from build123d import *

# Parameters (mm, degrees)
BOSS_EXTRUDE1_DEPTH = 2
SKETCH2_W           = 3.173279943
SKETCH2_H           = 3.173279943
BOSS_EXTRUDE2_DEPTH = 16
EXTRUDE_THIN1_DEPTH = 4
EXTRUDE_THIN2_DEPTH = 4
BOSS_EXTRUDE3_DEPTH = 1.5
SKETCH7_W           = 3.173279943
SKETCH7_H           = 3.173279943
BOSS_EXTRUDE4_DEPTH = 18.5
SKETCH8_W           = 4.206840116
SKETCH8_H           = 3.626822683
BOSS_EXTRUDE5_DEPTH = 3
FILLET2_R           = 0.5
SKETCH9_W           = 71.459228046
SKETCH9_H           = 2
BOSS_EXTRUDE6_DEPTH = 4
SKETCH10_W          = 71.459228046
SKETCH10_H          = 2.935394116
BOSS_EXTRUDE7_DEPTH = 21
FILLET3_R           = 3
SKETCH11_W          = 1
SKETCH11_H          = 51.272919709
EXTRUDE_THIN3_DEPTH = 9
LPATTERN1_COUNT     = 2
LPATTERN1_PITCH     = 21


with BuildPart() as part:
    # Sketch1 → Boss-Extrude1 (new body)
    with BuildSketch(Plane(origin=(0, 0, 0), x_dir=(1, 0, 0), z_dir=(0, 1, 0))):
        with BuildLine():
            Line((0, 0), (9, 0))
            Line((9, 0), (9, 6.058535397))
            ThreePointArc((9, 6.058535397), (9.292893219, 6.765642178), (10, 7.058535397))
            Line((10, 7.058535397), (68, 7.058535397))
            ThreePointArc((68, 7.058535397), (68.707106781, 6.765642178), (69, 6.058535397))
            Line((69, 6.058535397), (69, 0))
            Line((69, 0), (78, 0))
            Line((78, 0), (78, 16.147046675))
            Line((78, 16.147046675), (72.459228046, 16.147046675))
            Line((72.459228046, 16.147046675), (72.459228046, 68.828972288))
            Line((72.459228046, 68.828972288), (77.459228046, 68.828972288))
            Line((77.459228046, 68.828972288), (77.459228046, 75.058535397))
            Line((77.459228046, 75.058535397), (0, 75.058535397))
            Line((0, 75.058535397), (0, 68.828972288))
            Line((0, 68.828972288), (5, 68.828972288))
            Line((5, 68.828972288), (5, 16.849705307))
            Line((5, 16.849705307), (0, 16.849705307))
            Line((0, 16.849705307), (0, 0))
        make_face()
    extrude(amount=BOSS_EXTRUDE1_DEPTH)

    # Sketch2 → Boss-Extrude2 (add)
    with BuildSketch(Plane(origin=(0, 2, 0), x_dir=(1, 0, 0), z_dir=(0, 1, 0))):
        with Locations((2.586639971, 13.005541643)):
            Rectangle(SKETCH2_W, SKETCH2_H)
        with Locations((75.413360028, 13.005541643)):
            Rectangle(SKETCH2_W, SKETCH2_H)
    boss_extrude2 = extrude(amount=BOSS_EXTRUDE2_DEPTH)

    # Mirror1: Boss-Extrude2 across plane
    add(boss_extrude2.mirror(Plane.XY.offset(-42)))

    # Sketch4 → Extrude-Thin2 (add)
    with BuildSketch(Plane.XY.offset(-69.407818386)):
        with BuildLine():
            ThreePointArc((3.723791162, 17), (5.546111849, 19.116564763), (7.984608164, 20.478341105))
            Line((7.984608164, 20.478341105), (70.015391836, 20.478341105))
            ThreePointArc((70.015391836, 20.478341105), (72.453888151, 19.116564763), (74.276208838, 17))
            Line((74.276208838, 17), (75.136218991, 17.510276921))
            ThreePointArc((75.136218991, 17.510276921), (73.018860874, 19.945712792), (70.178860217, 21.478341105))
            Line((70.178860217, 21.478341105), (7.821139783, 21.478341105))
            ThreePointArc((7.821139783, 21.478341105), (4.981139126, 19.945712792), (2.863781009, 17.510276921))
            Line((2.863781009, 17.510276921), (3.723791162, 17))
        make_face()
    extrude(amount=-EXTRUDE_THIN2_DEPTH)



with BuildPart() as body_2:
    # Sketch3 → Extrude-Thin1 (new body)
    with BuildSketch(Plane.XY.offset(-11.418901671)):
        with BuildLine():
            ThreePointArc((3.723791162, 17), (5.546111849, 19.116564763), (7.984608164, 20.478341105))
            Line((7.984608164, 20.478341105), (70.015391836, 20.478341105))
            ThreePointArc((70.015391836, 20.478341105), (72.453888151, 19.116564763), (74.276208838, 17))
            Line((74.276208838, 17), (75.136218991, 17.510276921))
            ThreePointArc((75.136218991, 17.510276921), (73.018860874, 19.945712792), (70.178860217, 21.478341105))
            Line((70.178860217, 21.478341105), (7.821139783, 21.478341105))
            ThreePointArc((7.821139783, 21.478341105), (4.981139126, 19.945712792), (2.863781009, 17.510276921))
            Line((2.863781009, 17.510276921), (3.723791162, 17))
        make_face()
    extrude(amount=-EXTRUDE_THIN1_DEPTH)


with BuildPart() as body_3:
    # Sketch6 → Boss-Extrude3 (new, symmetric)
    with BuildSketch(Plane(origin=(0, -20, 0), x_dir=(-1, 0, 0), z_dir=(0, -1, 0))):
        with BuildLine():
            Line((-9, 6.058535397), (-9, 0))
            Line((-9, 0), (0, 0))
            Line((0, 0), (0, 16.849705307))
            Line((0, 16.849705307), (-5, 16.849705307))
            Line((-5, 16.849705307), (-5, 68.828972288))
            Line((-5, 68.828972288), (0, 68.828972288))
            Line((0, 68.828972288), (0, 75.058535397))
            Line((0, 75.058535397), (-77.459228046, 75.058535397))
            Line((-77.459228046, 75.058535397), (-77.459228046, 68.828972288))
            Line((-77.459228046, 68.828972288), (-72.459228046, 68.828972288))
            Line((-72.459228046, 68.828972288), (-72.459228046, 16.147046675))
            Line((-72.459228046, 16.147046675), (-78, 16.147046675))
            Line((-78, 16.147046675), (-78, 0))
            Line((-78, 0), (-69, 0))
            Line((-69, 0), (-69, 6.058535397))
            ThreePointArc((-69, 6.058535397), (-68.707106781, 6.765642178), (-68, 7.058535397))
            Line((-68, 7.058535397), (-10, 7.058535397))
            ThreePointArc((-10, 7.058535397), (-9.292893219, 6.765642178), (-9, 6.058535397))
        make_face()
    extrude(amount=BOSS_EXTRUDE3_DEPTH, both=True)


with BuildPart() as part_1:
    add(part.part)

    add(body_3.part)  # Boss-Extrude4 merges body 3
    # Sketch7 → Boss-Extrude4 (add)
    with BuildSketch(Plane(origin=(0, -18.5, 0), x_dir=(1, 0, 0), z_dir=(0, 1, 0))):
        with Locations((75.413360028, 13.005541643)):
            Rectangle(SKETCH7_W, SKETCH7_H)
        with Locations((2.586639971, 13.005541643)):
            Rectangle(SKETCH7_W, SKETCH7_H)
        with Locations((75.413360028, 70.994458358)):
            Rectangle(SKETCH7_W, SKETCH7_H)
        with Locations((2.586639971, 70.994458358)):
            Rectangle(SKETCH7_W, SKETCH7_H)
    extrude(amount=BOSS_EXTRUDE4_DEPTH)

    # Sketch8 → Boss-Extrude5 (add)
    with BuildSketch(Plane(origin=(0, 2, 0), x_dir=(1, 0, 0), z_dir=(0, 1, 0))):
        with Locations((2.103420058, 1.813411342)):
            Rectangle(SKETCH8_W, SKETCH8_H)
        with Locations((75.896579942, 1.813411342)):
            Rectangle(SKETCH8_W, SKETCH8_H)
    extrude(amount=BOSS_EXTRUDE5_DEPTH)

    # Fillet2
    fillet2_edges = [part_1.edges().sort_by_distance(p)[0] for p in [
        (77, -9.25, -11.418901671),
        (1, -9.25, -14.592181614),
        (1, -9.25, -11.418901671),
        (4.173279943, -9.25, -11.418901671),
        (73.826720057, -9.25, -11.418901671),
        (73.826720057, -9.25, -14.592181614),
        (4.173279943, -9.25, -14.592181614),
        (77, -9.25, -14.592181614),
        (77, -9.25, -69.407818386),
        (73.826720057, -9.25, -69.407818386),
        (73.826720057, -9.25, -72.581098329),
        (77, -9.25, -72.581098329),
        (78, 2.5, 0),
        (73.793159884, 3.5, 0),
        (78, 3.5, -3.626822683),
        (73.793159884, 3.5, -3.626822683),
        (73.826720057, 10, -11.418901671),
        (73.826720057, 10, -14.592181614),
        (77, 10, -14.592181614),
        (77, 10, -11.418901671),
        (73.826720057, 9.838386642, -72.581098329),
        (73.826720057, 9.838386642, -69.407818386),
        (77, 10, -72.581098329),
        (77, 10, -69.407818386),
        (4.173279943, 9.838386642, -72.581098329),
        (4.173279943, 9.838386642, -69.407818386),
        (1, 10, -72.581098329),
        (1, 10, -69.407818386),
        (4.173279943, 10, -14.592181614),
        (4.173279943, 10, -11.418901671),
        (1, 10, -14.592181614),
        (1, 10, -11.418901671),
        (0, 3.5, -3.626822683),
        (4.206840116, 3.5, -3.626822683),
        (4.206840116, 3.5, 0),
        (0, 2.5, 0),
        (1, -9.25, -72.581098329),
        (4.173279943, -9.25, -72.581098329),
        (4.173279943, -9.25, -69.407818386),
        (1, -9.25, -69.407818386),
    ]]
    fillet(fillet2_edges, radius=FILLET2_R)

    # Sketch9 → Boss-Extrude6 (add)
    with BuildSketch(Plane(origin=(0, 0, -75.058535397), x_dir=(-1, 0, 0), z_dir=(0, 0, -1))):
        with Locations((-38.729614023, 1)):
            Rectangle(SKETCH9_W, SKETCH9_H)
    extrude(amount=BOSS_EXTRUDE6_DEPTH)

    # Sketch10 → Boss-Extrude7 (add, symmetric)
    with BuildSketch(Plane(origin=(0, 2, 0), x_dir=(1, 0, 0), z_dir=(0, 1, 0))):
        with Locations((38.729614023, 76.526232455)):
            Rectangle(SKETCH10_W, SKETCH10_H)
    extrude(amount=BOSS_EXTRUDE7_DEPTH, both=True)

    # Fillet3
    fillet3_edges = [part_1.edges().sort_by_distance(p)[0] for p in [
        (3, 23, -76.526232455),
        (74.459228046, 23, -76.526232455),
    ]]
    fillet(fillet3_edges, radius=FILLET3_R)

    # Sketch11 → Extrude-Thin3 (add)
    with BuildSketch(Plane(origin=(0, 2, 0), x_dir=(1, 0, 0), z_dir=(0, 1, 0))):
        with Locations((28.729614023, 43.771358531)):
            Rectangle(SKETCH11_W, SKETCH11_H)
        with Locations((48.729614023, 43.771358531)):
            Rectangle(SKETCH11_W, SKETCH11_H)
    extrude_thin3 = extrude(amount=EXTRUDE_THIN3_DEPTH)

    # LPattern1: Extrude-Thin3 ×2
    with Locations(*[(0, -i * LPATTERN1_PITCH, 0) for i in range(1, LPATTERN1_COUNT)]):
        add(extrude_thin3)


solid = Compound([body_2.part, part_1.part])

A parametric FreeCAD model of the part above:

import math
import FreeCAD as App
import Part
import Sketcher
Q = App.Units.Quantity


def edges_at(feature, points):
    """Names of the edges that pass closest to the given points."""
    edges = feature.Shape.Edges
    near = lambda p: min(range(len(edges)), key=lambda i: edges[i].distToShape(Part.Vertex(*p))[0])
    return sorted({f"Edge{near(p) + 1}" for p in points})

doc = App.newDocument("Part")
params = doc.addObject("Spreadsheet::Sheet", "Params")
for row, (alias, value) in enumerate([
    ("sketch1_radius", "1 mm"),
    ("sketch1_width", "9 mm"),
    ("sketch1_width2", "58 mm"),
    ("sketch1_width3", "5 mm"),
    ("pad1_length", "2 mm"),
    ("pad2_length", "16 mm"),
    ("sketch3_length", "1 mm"),
    ("pad3_length", "4 mm"),
    ("sketch4_length", "1 mm"),
    ("pad4_length", "4 mm"),
    ("sketch5_radius", "1 mm"),
    ("sketch5_width", "9 mm"),
    ("sketch5_width2", "5 mm"),
    ("sketch5_width3", "58 mm"),
    ("pad5_length", "3 mm"),
    ("pad6_length", "18.5 mm"),
    ("pad7_length", "3 mm"),
    ("fillet_radius", "0.5 mm"),
    ("sketch8_height", "2 mm"),
    ("pad8_length", "4 mm"),
    ("pad9_length", "42 mm"),
    ("fillet2_radius", "3 mm"),
    ("sketch10_width", "1 mm"),
    ("pad10_length", "9 mm"),
    ("linearpattern_pitch", "21 mm"),
], start=1):
    params.set(f"A{row}", alias)
    params.set(f"B{row}", "=" + value)
    params.setAlias(f"B{row}", alias)

body = doc.addObject("PartDesign::Body", "Body")

# Sketch on XZ plane
sketch1 = doc.addObject("Sketcher::SketchObject", "Sketch")
body.addObject(sketch1)
sketch1.AttachmentSupport = (doc.XZ_Plane, [""])
sketch1.MapMode = "FlatFace"
sketch1.addGeometry([
    Part.LineSegment(App.Vector(0, 0, 0), App.Vector(9, 0, 0)),  # 0
    Part.LineSegment(App.Vector(9, 0, 0), App.Vector(9, -6.058535, 0)),  # 1
    Part.ArcOfCircle(Part.Circle(App.Vector(10, -6.058535, 0), App.Vector(0, 0, 1), 1), math.radians(-180), math.radians(-90)),  # 2
    Part.LineSegment(App.Vector(10, -7.058535, 0), App.Vector(68, -7.058535, 0)),  # 3
    Part.ArcOfCircle(Part.Circle(App.Vector(68, -6.058535, 0), App.Vector(0, 0, 1), 1), math.radians(-90), math.radians(0)),  # 4
    Part.LineSegment(App.Vector(69, -6.058535, 0), App.Vector(69, 0, 0)),  # 5
    Part.LineSegment(App.Vector(69, 0, 0), App.Vector(78, 0, 0)),  # 6
    Part.LineSegment(App.Vector(78, 0, 0), App.Vector(78, -16.147047, 0)),  # 7
    Part.LineSegment(App.Vector(78, -16.147047, 0), App.Vector(72.459228, -16.147047, 0)),  # 8
    Part.LineSegment(App.Vector(72.459228, -16.147047, 0), App.Vector(72.459228, -68.828972, 0)),  # 9
    Part.LineSegment(App.Vector(72.459228, -68.828972, 0), App.Vector(77.459228, -68.828972, 0)),  # 10
    Part.LineSegment(App.Vector(77.459228, -68.828972, 0), App.Vector(77.459228, -75.058535, 0)),  # 11
    Part.LineSegment(App.Vector(77.459228, -75.058535, 0), App.Vector(0, -75.058535, 0)),  # 12
    Part.LineSegment(App.Vector(0, -75.058535, 0), App.Vector(0, -68.828972, 0)),  # 13
    Part.LineSegment(App.Vector(0, -68.828972, 0), App.Vector(5, -68.828972, 0)),  # 14
    Part.LineSegment(App.Vector(5, -68.828972, 0), App.Vector(5, -16.849705, 0)),  # 15
    Part.LineSegment(App.Vector(5, -16.849705, 0), App.Vector(0, -16.849705, 0)),  # 16
    Part.LineSegment(App.Vector(0, -16.849705, 0), App.Vector(0, 0, 0)),  # 17
], False)
sketch1.addConstraint([
    Sketcher.Constraint("Coincident", 0, 2, 1, 1),
    Sketcher.Constraint("Tangent", 1, 2, 2, 1),
    Sketcher.Constraint("Tangent", 2, 2, 3, 1),
    Sketcher.Constraint("Tangent", 3, 2, 4, 1),
    Sketcher.Constraint("Tangent", 4, 2, 5, 1),
    Sketcher.Constraint("Coincident", 5, 2, 6, 1),
    Sketcher.Constraint("Coincident", 6, 2, 7, 1),
    Sketcher.Constraint("Coincident", 7, 2, 8, 1),
    Sketcher.Constraint("Coincident", 8, 2, 9, 1),
    Sketcher.Constraint("Coincident", 9, 2, 10, 1),
    Sketcher.Constraint("Coincident", 10, 2, 11, 1),
    Sketcher.Constraint("Coincident", 11, 2, 12, 1),
    Sketcher.Constraint("Coincident", 12, 2, 13, 1),
    Sketcher.Constraint("Coincident", 13, 2, 14, 1),
    Sketcher.Constraint("Coincident", 14, 2, 15, 1),
    Sketcher.Constraint("Coincident", 15, 2, 16, 1),
    Sketcher.Constraint("Coincident", 16, 2, 17, 1),
    Sketcher.Constraint("Coincident", 17, 2, 0, 1),
    Sketcher.Constraint("Horizontal", 0),
    Sketcher.Constraint("Vertical", 1),
    Sketcher.Constraint("Horizontal", 3),
    Sketcher.Constraint("Vertical", 5),
    Sketcher.Constraint("Horizontal", 6),
    Sketcher.Constraint("Vertical", 7),
    Sketcher.Constraint("Horizontal", 8),
    Sketcher.Constraint("Vertical", 9),
    Sketcher.Constraint("Horizontal", 10),
    Sketcher.Constraint("Vertical", 11),
    Sketcher.Constraint("Horizontal", 12),
    Sketcher.Constraint("Vertical", 13),
    Sketcher.Constraint("Horizontal", 14),
    Sketcher.Constraint("Vertical", 15),
    Sketcher.Constraint("Horizontal", 16),
    Sketcher.Constraint("Vertical", 17),
    Sketcher.Constraint("Coincident", 17, 2, -1, 1),
    Sketcher.Constraint("Equal", 2, 4),
    Sketcher.Constraint("PointOnObject", 5, 2, -1),
    Sketcher.Constraint("PointOnObject", 12, 2, -2),
    Sketcher.Constraint("Horizontal", 10, 2, 13, 2),
    Sketcher.Constraint("Equal", 0, 6),
    Sketcher.Constraint("Equal", 10, 14),
    Sketcher.Constraint("Radius", 2, Q("1 mm")),
    Sketcher.Constraint("DistanceX", 0, 1, 0, 2, Q("9 mm")),
    Sketcher.Constraint("DistanceX", 3, 1, 3, 2, Q("58 mm")),
    Sketcher.Constraint("DistanceX", 10, 1, 10, 2, Q("5 mm")),
    Sketcher.Constraint("DistanceY", 11, 2, 3, 2, Q("68 mm")),
    Sketcher.Constraint("DistanceX", 8, 2, 8, 1, Q("5.540772 mm")),
    Sketcher.Constraint("DistanceY", 1, 2, 1, 1, Q("6.058535 mm")),
    Sketcher.Constraint("DistanceY", 7, 2, 7, 1, Q("16.147047 mm")),
    Sketcher.Constraint("DistanceY", 9, 2, 9, 1, Q("52.681926 mm")),
    Sketcher.Constraint("DistanceY", 15, 1, 15, 2, Q("51.979267 mm")),
])
sketch1.setExpression("Constraints[41]", "Params.sketch1_radius")
sketch1.setExpression("Constraints[42]", "Params.sketch1_width")
sketch1.setExpression("Constraints[43]", "Params.sketch1_width2")
sketch1.setExpression("Constraints[44]", "Params.sketch1_width3")
pad1 = doc.addObject("PartDesign::Pad", "Pad")
body.addObject(pad1)
pad1.Profile = sketch1
pad1.setExpression("Length", "Params.pad1_length")
pad1.Reversed = True

# Sketch on XZ plane
sketch2 = doc.addObject("Sketcher::SketchObject", "Sketch001")
body.addObject(sketch2)
sketch2.AttachmentSupport = (doc.XZ_Plane, [""])
sketch2.MapMode = "FlatFace"
sketch2.AttachmentOffset = App.Placement(App.Vector(0, 0, -2), App.Rotation())
sketch2.addGeometry([
    Part.LineSegment(App.Vector(1, -14.592182, 0), App.Vector(1, -11.418902, 0)),  # 0
    Part.LineSegment(App.Vector(1, -11.418902, 0), App.Vector(4.17328, -11.418902, 0)),  # 1
    Part.LineSegment(App.Vector(4.17328, -11.418902, 0), App.Vector(4.17328, -14.592182, 0)),  # 2
    Part.LineSegment(App.Vector(4.17328, -14.592182, 0), App.Vector(1, -14.592182, 0)),  # 3
    Part.LineSegment(App.Vector(73.82672, -14.592182, 0), App.Vector(73.82672, -11.418902, 0)),  # 4
    Part.LineSegment(App.Vector(73.82672, -11.418902, 0), App.Vector(77, -11.418902, 0)),  # 5
    Part.LineSegment(App.Vector(77, -11.418902, 0), App.Vector(77, -14.592182, 0)),  # 6
    Part.LineSegment(App.Vector(77, -14.592182, 0), App.Vector(73.82672, -14.592182, 0)),  # 7
], False)
sketch2.addConstraint([
    Sketcher.Constraint("Coincident", 0, 2, 1, 1),
    Sketcher.Constraint("Coincident", 1, 2, 2, 1),
    Sketcher.Constraint("Coincident", 2, 2, 3, 1),
    Sketcher.Constraint("Coincident", 3, 2, 0, 1),
    Sketcher.Constraint("Coincident", 4, 2, 5, 1),
    Sketcher.Constraint("Coincident", 5, 2, 6, 1),
    Sketcher.Constraint("Coincident", 6, 2, 7, 1),
    Sketcher.Constraint("Coincident", 7, 2, 4, 1),
    Sketcher.Constraint("Vertical", 0),
    Sketcher.Constraint("Horizontal", 1),
    Sketcher.Constraint("Vertical", 2),
    Sketcher.Constraint("Horizontal", 3),
    Sketcher.Constraint("Vertical", 4),
    Sketcher.Constraint("Horizontal", 5),
    Sketcher.Constraint("Vertical", 6),
    Sketcher.Constraint("Horizontal", 7),
    Sketcher.Constraint("Horizontal", 1, 2, 4, 2),
    Sketcher.Constraint("Horizontal", 3, 2, 6, 2),
    Sketcher.Constraint("Equal", 3, 5),
    Sketcher.Constraint("Equal", 7, 0),
    Sketcher.Constraint("DistanceX", -1, 1, 0, 2, Q("1 mm")),
    Sketcher.Constraint("DistanceX", -1, 1, 5, 2, Q("77 mm")),
    Sketcher.Constraint("DistanceX", 1, 1, 1, 2, Q("3.17328 mm")),
    Sketcher.Constraint("DistanceY", 0, 2, -1, 1, Q("11.418902 mm")),
])
pad2 = doc.addObject("PartDesign::Pad", "Pad001")
body.addObject(pad2)
pad2.Profile = sketch2
pad2.setExpression("Length", "Params.pad2_length")
pad2.Reversed = True
doc.recompute()

datumplane = doc.addObject("PartDesign::Plane", "DatumPlane")
body.addObject(datumplane)
datumplane.AttachmentSupport = (doc.XY_Plane, [""])
datumplane.MapMode = "FlatFace"
datumplane.AttachmentOffset = App.Placement(App.Vector(0, 0, -42), App.Rotation())
mirrored = doc.addObject("PartDesign::Mirrored", "Mirrored")
body.addObject(mirrored)
mirrored.Originals = [pad2]
mirrored.MirrorPlane = (datumplane, [""])
body.Tip = mirrored

# Sketch on XY plane
sketch3 = doc.addObject("Sketcher::SketchObject", "Sketch002")
body.addObject(sketch3)
sketch3.AttachmentSupport = (doc.XY_Plane, [""])
sketch3.MapMode = "FlatFace"
sketch3.AttachmentOffset = App.Placement(App.Vector(0, 0, -69.407818), App.Rotation())
sketch3.addGeometry([
    Part.ArcOfCircle(Part.Circle(App.Vector(10.609007, 12.914738, 0), App.Vector(0, 0, 1), 8.00597), math.radians(109.135613), math.radians(149.317723)),  # 0
    Part.LineSegment(App.Vector(7.984608, 20.478341, 0), App.Vector(70.015392, 20.478341, 0)),  # 1
    Part.ArcOfCircle(Part.Circle(App.Vector(67.390993, 12.914738, 0), App.Vector(0, 0, 1), 8.00597), math.radians(30.682277), math.radians(70.864387)),  # 2
    Part.LineSegment(App.Vector(74.276209, 17, 0), App.Vector(75.136219, 17.510277, 0)),  # 3
    Part.ArcOfCircle(Part.Circle(App.Vector(67.390993, 12.914738, 0), App.Vector(0, 0, 1), 9.00597), math.radians(30.682277), math.radians(71.967426)),  # 4
    Part.LineSegment(App.Vector(70.17886, 21.478341, 0), App.Vector(7.82114, 21.478341, 0)),  # 5
    Part.ArcOfCircle(Part.Circle(App.Vector(10.609007, 12.914738, 0), App.Vector(0, 0, 1), 9.00597), math.radians(108.032574), math.radians(149.317723)),  # 6
    Part.LineSegment(App.Vector(2.863781, 17.510277, 0), App.Vector(3.723791, 17, 0)),  # 7
], False)
sketch3.addConstraint([
    Sketcher.Constraint("Coincident", 0, 1, 1, 1),
    Sketcher.Constraint("Coincident", 1, 2, 2, 2),
    Sketcher.Constraint("Coincident", 2, 1, 3, 1),
    Sketcher.Constraint("Coincident", 3, 2, 4, 1),
    Sketcher.Constraint("Coincident", 4, 2, 5, 1),
    Sketcher.Constraint("Coincident", 5, 2, 6, 1),
    Sketcher.Constraint("Coincident", 6, 2, 7, 1),
    Sketcher.Constraint("Coincident", 7, 2, 0, 2),
    Sketcher.Constraint("Horizontal", 1),
    Sketcher.Constraint("Horizontal", 5),
    Sketcher.Constraint("Coincident", 4, 3, 2, 3),
    Sketcher.Constraint("Coincident", 6, 3, 0, 3),
    Sketcher.Constraint("Equal", 0, 2),
    Sketcher.Constraint("Equal", 4, 6),
    Sketcher.Constraint("Horizontal", 0, 3, 2, 3),
    Sketcher.Constraint("Horizontal", 3, 2, 6, 2),
    Sketcher.Constraint("Horizontal", 2, 1, 7, 2),
    Sketcher.Constraint("Distance", 3, Q("1 mm")),
    Sketcher.Constraint("DistanceY", -1, 1, 2, 1, Q("17 mm")),
    Sketcher.Constraint("DistanceY", 1, 2, 4, 2, Q("1 mm")),
    Sketcher.Constraint("Radius", 0, Q("8.00597 mm")),
    Sketcher.Constraint("DistanceX", 5, 2, 5, 1, Q("62.35772 mm")),
    Sketcher.Constraint("DistanceX", 0, 1, 0, 3, Q("2.624398 mm")),
    Sketcher.Constraint("DistanceY", -1, 1, 0, 3, Q("12.914738 mm")),
    Sketcher.Constraint("DistanceX", -1, 1, 0, 1, Q("7.984608 mm")),
    Sketcher.Constraint("DistanceX", -1, 1, 3, 2, Q("75.136219 mm")),
])
sketch3.setExpression("Constraints[17]", "Params.sketch3_length")
pad3 = doc.addObject("PartDesign::Pad", "Pad002")
body.addObject(pad3)
pad3.Profile = sketch3
pad3.setExpression("Length", "Params.pad3_length")
pad3.Reversed = True
body2 = doc.addObject("PartDesign::Body", "Body001")

# Sketch on XY plane
sketch4 = doc.addObject("Sketcher::SketchObject", "Sketch003")
body2.addObject(sketch4)
sketch4.AttachmentSupport = (doc.getObject("XY_Plane001"), [""])
sketch4.MapMode = "FlatFace"
sketch4.AttachmentOffset = App.Placement(App.Vector(0, 0, -11.418902), App.Rotation())
sketch4.addGeometry([
    Part.ArcOfCircle(Part.Circle(App.Vector(10.609007, 12.914738, 0), App.Vector(0, 0, 1), 8.00597), math.radians(109.135613), math.radians(149.317723)),  # 0
    Part.LineSegment(App.Vector(7.984608, 20.478341, 0), App.Vector(70.015392, 20.478341, 0)),  # 1
    Part.ArcOfCircle(Part.Circle(App.Vector(67.390993, 12.914738, 0), App.Vector(0, 0, 1), 8.00597), math.radians(30.682277), math.radians(70.864387)),  # 2
    Part.LineSegment(App.Vector(74.276209, 17, 0), App.Vector(75.136219, 17.510277, 0)),  # 3
    Part.ArcOfCircle(Part.Circle(App.Vector(67.390993, 12.914738, 0), App.Vector(0, 0, 1), 9.00597), math.radians(30.682277), math.radians(71.967426)),  # 4
    Part.LineSegment(App.Vector(70.17886, 21.478341, 0), App.Vector(7.82114, 21.478341, 0)),  # 5
    Part.ArcOfCircle(Part.Circle(App.Vector(10.609007, 12.914738, 0), App.Vector(0, 0, 1), 9.00597), math.radians(108.032574), math.radians(149.317723)),  # 6
    Part.LineSegment(App.Vector(2.863781, 17.510277, 0), App.Vector(3.723791, 17, 0)),  # 7
], False)
sketch4.addConstraint([
    Sketcher.Constraint("Coincident", 0, 1, 1, 1),
    Sketcher.Constraint("Coincident", 1, 2, 2, 2),
    Sketcher.Constraint("Coincident", 2, 1, 3, 1),
    Sketcher.Constraint("Coincident", 3, 2, 4, 1),
    Sketcher.Constraint("Coincident", 4, 2, 5, 1),
    Sketcher.Constraint("Coincident", 5, 2, 6, 1),
    Sketcher.Constraint("Coincident", 6, 2, 7, 1),
    Sketcher.Constraint("Coincident", 7, 2, 0, 2),
    Sketcher.Constraint("Horizontal", 1),
    Sketcher.Constraint("Horizontal", 5),
    Sketcher.Constraint("Coincident", 4, 3, 2, 3),
    Sketcher.Constraint("Coincident", 6, 3, 0, 3),
    Sketcher.Constraint("Equal", 0, 2),
    Sketcher.Constraint("Equal", 4, 6),
    Sketcher.Constraint("Horizontal", 0, 3, 2, 3),
    Sketcher.Constraint("Horizontal", 3, 2, 6, 2),
    Sketcher.Constraint("Horizontal", 2, 1, 7, 2),
    Sketcher.Constraint("Distance", 3, Q("1 mm")),
    Sketcher.Constraint("DistanceY", -1, 1, 2, 1, Q("17 mm")),
    Sketcher.Constraint("DistanceY", 1, 2, 4, 2, Q("1 mm")),
    Sketcher.Constraint("Radius", 0, Q("8.00597 mm")),
    Sketcher.Constraint("DistanceX", 5, 2, 5, 1, Q("62.35772 mm")),
    Sketcher.Constraint("DistanceX", 0, 1, 0, 3, Q("2.624398 mm")),
    Sketcher.Constraint("DistanceY", -1, 1, 0, 3, Q("12.914738 mm")),
    Sketcher.Constraint("DistanceX", -1, 1, 0, 1, Q("7.984608 mm")),
    Sketcher.Constraint("DistanceX", -1, 1, 3, 2, Q("75.136219 mm")),
])
sketch4.setExpression("Constraints[17]", "Params.sketch4_length")
pad4 = doc.addObject("PartDesign::Pad", "Pad003")
body2.addObject(pad4)
pad4.Profile = sketch4
pad4.setExpression("Length", "Params.pad4_length")
pad4.Reversed = True
body3 = doc.addObject("PartDesign::Body", "Body002")

# Sketch on XZ plane
sketch5 = doc.addObject("Sketcher::SketchObject", "Sketch004")
body3.addObject(sketch5)
sketch5.AttachmentSupport = (doc.getObject("XZ_Plane002"), [""])
sketch5.MapMode = "FlatFace"
sketch5.AttachmentOffset = App.Placement(App.Vector(0, 0, 20), App.Rotation())
sketch5.addGeometry([
    Part.LineSegment(App.Vector(9, -6.058535, 0), App.Vector(9, 0, 0)),  # 0
    Part.LineSegment(App.Vector(9, 0, 0), App.Vector(0, 0, 0)),  # 1
    Part.LineSegment(App.Vector(0, 0, 0), App.Vector(0, -16.849705, 0)),  # 2
    Part.LineSegment(App.Vector(0, -16.849705, 0), App.Vector(5, -16.849705, 0)),  # 3
    Part.LineSegment(App.Vector(5, -16.849705, 0), App.Vector(5, -68.828972, 0)),  # 4
    Part.LineSegment(App.Vector(5, -68.828972, 0), App.Vector(0, -68.828972, 0)),  # 5
    Part.LineSegment(App.Vector(0, -68.828972, 0), App.Vector(0, -75.058535, 0)),  # 6
    Part.LineSegment(App.Vector(0, -75.058535, 0), App.Vector(77.459228, -75.058535, 0)),  # 7
    Part.LineSegment(App.Vector(77.459228, -75.058535, 0), App.Vector(77.459228, -68.828972, 0)),  # 8
    Part.LineSegment(App.Vector(77.459228, -68.828972, 0), App.Vector(72.459228, -68.828972, 0)),  # 9
    Part.LineSegment(App.Vector(72.459228, -68.828972, 0), App.Vector(72.459228, -16.147047, 0)),  # 10
    Part.LineSegment(App.Vector(72.459228, -16.147047, 0), App.Vector(78, -16.147047, 0)),  # 11
    Part.LineSegment(App.Vector(78, -16.147047, 0), App.Vector(78, 0, 0)),  # 12
    Part.LineSegment(App.Vector(78, 0, 0), App.Vector(69, 0, 0)),  # 13
    Part.LineSegment(App.Vector(69, 0, 0), App.Vector(69, -6.058535, 0)),  # 14
    Part.ArcOfCircle(Part.Circle(App.Vector(68, -6.058535, 0), App.Vector(0, 0, 1), 1), math.radians(-90), math.radians(0)),  # 15
    Part.LineSegment(App.Vector(68, -7.058535, 0), App.Vector(10, -7.058535, 0)),  # 16
    Part.ArcOfCircle(Part.Circle(App.Vector(10, -6.058535, 0), App.Vector(0, 0, 1), 1), math.radians(-180), math.radians(-90)),  # 17
], False)
sketch5.addConstraint([
    Sketcher.Constraint("Coincident", 0, 2, 1, 1),
    Sketcher.Constraint("Coincident", 1, 2, 2, 1),
    Sketcher.Constraint("Coincident", 2, 2, 3, 1),
    Sketcher.Constraint("Coincident", 3, 2, 4, 1),
    Sketcher.Constraint("Coincident", 4, 2, 5, 1),
    Sketcher.Constraint("Coincident", 5, 2, 6, 1),
    Sketcher.Constraint("Coincident", 6, 2, 7, 1),
    Sketcher.Constraint("Coincident", 7, 2, 8, 1),
    Sketcher.Constraint("Coincident", 8, 2, 9, 1),
    Sketcher.Constraint("Coincident", 9, 2, 10, 1),
    Sketcher.Constraint("Coincident", 10, 2, 11, 1),
    Sketcher.Constraint("Coincident", 11, 2, 12, 1),
    Sketcher.Constraint("Coincident", 12, 2, 13, 1),
    Sketcher.Constraint("Coincident", 13, 2, 14, 1),
    Sketcher.Constraint("Tangent", 14, 2, 15, 2),
    Sketcher.Constraint("Tangent", 15, 1, 16, 1),
    Sketcher.Constraint("Tangent", 16, 2, 17, 2),
    Sketcher.Constraint("Tangent", 17, 1, 0, 1),
    Sketcher.Constraint("Vertical", 0),
    Sketcher.Constraint("Horizontal", 1),
    Sketcher.Constraint("Vertical", 2),
    Sketcher.Constraint("Horizontal", 3),
    Sketcher.Constraint("Vertical", 4),
    Sketcher.Constraint("Horizontal", 5),
    Sketcher.Constraint("Vertical", 6),
    Sketcher.Constraint("Horizontal", 7),
    Sketcher.Constraint("Vertical", 8),
    Sketcher.Constraint("Horizontal", 9),
    Sketcher.Constraint("Vertical", 10),
    Sketcher.Constraint("Horizontal", 11),
    Sketcher.Constraint("Vertical", 12),
    Sketcher.Constraint("Horizontal", 13),
    Sketcher.Constraint("Vertical", 14),
    Sketcher.Constraint("Horizontal", 16),
    Sketcher.Constraint("Coincident", 1, 2, -1, 1),
    Sketcher.Constraint("Equal", 15, 17),
    Sketcher.Constraint("PointOnObject", 5, 2, -2),
    Sketcher.Constraint("PointOnObject", 12, 2, -1),
    Sketcher.Constraint("Horizontal", 5, 2, 8, 2),
    Sketcher.Constraint("Equal", 5, 9),
    Sketcher.Constraint("Equal", 1, 13),
    Sketcher.Constraint("Radius", 15, Q("1 mm")),
    Sketcher.Constraint("DistanceX", 1, 2, 1, 1, Q("9 mm")),
    Sketcher.Constraint("DistanceX", 3, 1, 3, 2, Q("5 mm")),
    Sketcher.Constraint("DistanceX", 16, 2, 16, 1, Q("58 mm")),
    Sketcher.Constraint("DistanceY", 6, 2, 17, 3, Q("69 mm")),
    Sketcher.Constraint("DistanceX", 7, 1, 7, 2, Q("77.459228 mm")),
    Sketcher.Constraint("DistanceY", 0, 1, 0, 2, Q("6.058535 mm")),
    Sketcher.Constraint("DistanceY", 2, 2, 2, 1, Q("16.849705 mm")),
    Sketcher.Constraint("DistanceY", 4, 2, 4, 1, Q("51.979267 mm")),
    Sketcher.Constraint("DistanceY", 10, 1, 10, 2, Q("52.681926 mm")),
])
sketch5.setExpression("Constraints[41]", "Params.sketch5_radius")
sketch5.setExpression("Constraints[42]", "Params.sketch5_width")
sketch5.setExpression("Constraints[43]", "Params.sketch5_width2")
sketch5.setExpression("Constraints[44]", "Params.sketch5_width3")
pad5 = doc.addObject("PartDesign::Pad", "Pad004")
body3.addObject(pad5)
pad5.Profile = sketch5
pad5.setExpression("Length", "Params.pad5_length")
pad5.Midplane = True
body.AllowCompound = True
doc.recompute()

boolean = doc.addObject("PartDesign::Boolean", "Boolean")
body.addObject(boolean)
boolean.Type = "Fuse"
boolean.addObjects([body3])

# Sketch on XZ plane
sketch6 = doc.addObject("Sketcher::SketchObject", "Sketch005")
body.addObject(sketch6)
sketch6.AttachmentSupport = (doc.XZ_Plane, [""])
sketch6.MapMode = "FlatFace"
sketch6.AttachmentOffset = App.Placement(App.Vector(0, 0, 18.5), App.Rotation())
sketch6.addGeometry([
    Part.LineSegment(App.Vector(73.82672, -14.592182, 0), App.Vector(73.82672, -11.418902, 0)),  # 0
    Part.LineSegment(App.Vector(73.82672, -11.418902, 0), App.Vector(77, -11.418902, 0)),  # 1
    Part.LineSegment(App.Vector(77, -11.418902, 0), App.Vector(77, -14.592182, 0)),  # 2
    Part.LineSegment(App.Vector(77, -14.592182, 0), App.Vector(73.82672, -14.592182, 0)),  # 3
    Part.LineSegment(App.Vector(1, -14.592182, 0), App.Vector(1, -11.418902, 0)),  # 4
    Part.LineSegment(App.Vector(1, -11.418902, 0), App.Vector(4.17328, -11.418902, 0)),  # 5
    Part.LineSegment(App.Vector(4.17328, -11.418902, 0), App.Vector(4.17328, -14.592182, 0)),  # 6
    Part.LineSegment(App.Vector(4.17328, -14.592182, 0), App.Vector(1, -14.592182, 0)),  # 7
    Part.LineSegment(App.Vector(73.82672, -72.581098, 0), App.Vector(73.82672, -69.407818, 0)),  # 8
    Part.LineSegment(App.Vector(73.82672, -69.407818, 0), App.Vector(77, -69.407818, 0)),  # 9
    Part.LineSegment(App.Vector(77, -69.407818, 0), App.Vector(77, -72.581098, 0)),  # 10
    Part.LineSegment(App.Vector(77, -72.581098, 0), App.Vector(73.82672, -72.581098, 0)),  # 11
    Part.LineSegment(App.Vector(1, -72.581098, 0), App.Vector(1, -69.407818, 0)),  # 12
    Part.LineSegment(App.Vector(1, -69.407818, 0), App.Vector(4.17328, -69.407818, 0)),  # 13
    Part.LineSegment(App.Vector(4.17328, -69.407818, 0), App.Vector(4.17328, -72.581098, 0)),  # 14
    Part.LineSegment(App.Vector(4.17328, -72.581098, 0), App.Vector(1, -72.581098, 0)),  # 15
], False)
sketch6.addConstraint([
    Sketcher.Constraint("Coincident", 0, 2, 1, 1),
    Sketcher.Constraint("Coincident", 1, 2, 2, 1),
    Sketcher.Constraint("Coincident", 2, 2, 3, 1),
    Sketcher.Constraint("Coincident", 3, 2, 0, 1),
    Sketcher.Constraint("Coincident", 4, 2, 5, 1),
    Sketcher.Constraint("Coincident", 5, 2, 6, 1),
    Sketcher.Constraint("Coincident", 6, 2, 7, 1),
    Sketcher.Constraint("Coincident", 7, 2, 4, 1),
    Sketcher.Constraint("Coincident", 8, 2, 9, 1),
    Sketcher.Constraint("Coincident", 9, 2, 10, 1),
    Sketcher.Constraint("Coincident", 10, 2, 11, 1),
    Sketcher.Constraint("Coincident", 11, 2, 8, 1),
    Sketcher.Constraint("Coincident", 12, 2, 13, 1),
    Sketcher.Constraint("Coincident", 13, 2, 14, 1),
    Sketcher.Constraint("Coincident", 14, 2, 15, 1),
    Sketcher.Constraint("Coincident", 15, 2, 12, 1),
    Sketcher.Constraint("Vertical", 0),
    Sketcher.Constraint("Horizontal", 1),
    Sketcher.Constraint("Vertical", 2),
    Sketcher.Constraint("Horizontal", 3),
    Sketcher.Constraint("Vertical", 4),
    Sketcher.Constraint("Horizontal", 5),
    Sketcher.Constraint("Vertical", 6),
    Sketcher.Constraint("Horizontal", 7),
    Sketcher.Constraint("Vertical", 8),
    Sketcher.Constraint("Horizontal", 9),
    Sketcher.Constraint("Vertical", 10),
    Sketcher.Constraint("Horizontal", 11),
    Sketcher.Constraint("Vertical", 12),
    Sketcher.Constraint("Horizontal", 13),
    Sketcher.Constraint("Vertical", 14),
    Sketcher.Constraint("Horizontal", 15),
    Sketcher.Constraint("Horizontal", 1, 2, 4, 2),
    Sketcher.Constraint("Horizontal", 3, 2, 6, 2),
    Sketcher.Constraint("Horizontal", 9, 2, 12, 2),
    Sketcher.Constraint("Horizontal", 11, 2, 14, 2),
    Sketcher.Constraint("Vertical", 3, 2, 8, 2),
    Sketcher.Constraint("Vertical", 2, 2, 9, 2),
    Sketcher.Constraint("Vertical", 7, 2, 12, 2),
    Sketcher.Constraint("Vertical", 6, 2, 13, 2),
    Sketcher.Constraint("Equal", 3, 5),
    Sketcher.Constraint("Equal", 15, 0),
    Sketcher.Constraint("Equal", 6, 8),
    Sketcher.Constraint("DistanceX", -1, 1, 1, 2, Q("77 mm")),
    Sketcher.Constraint("DistanceX", -1, 1, 4, 2, Q("1 mm")),
    Sketcher.Constraint("DistanceX", 1, 1, 1, 2, Q("3.17328 mm")),
    Sketcher.Constraint("DistanceY", 0, 2, -1, 1, Q("11.418902 mm")),
    Sketcher.Constraint("DistanceY", 10, 2, -1, 1, Q("72.581098 mm")),
])
pad6 = doc.addObject("PartDesign::Pad", "Pad005")
body.addObject(pad6)
pad6.Profile = sketch6
pad6.setExpression("Length", "Params.pad6_length")
pad6.Reversed = True

# Sketch on XZ plane
sketch7 = doc.addObject("Sketcher::SketchObject", "Sketch006")
body.addObject(sketch7)
sketch7.AttachmentSupport = (doc.XZ_Plane, [""])
sketch7.MapMode = "FlatFace"
sketch7.AttachmentOffset = App.Placement(App.Vector(0, 0, -2), App.Rotation())
sketch7.addGeometry([
    Part.LineSegment(App.Vector(0, -3.626823, 0), App.Vector(0, 0, 0)),  # 0
    Part.LineSegment(App.Vector(0, 0, 0), App.Vector(4.20684, 0, 0)),  # 1
    Part.LineSegment(App.Vector(4.20684, 0, 0), App.Vector(4.20684, -3.626823, 0)),  # 2
    Part.LineSegment(App.Vector(4.20684, -3.626823, 0), App.Vector(0, -3.626823, 0)),  # 3
    Part.LineSegment(App.Vector(73.79316, -3.626823, 0), App.Vector(73.79316, 0, 0)),  # 4
    Part.LineSegment(App.Vector(73.79316, 0, 0), App.Vector(78, 0, 0)),  # 5
    Part.LineSegment(App.Vector(78, 0, 0), App.Vector(78, -3.626823, 0)),  # 6
    Part.LineSegment(App.Vector(78, -3.626823, 0), App.Vector(73.79316, -3.626823, 0)),  # 7
], False)
sketch7.addConstraint([
    Sketcher.Constraint("Coincident", 0, 2, 1, 1),
    Sketcher.Constraint("Coincident", 1, 2, 2, 1),
    Sketcher.Constraint("Coincident", 2, 2, 3, 1),
    Sketcher.Constraint("Coincident", 3, 2, 0, 1),
    Sketcher.Constraint("Coincident", 4, 2, 5, 1),
    Sketcher.Constraint("Coincident", 5, 2, 6, 1),
    Sketcher.Constraint("Coincident", 6, 2, 7, 1),
    Sketcher.Constraint("Coincident", 7, 2, 4, 1),
    Sketcher.Constraint("Vertical", 0),
    Sketcher.Constraint("Horizontal", 1),
    Sketcher.Constraint("Vertical", 2),
    Sketcher.Constraint("Horizontal", 3),
    Sketcher.Constraint("Vertical", 4),
    Sketcher.Constraint("Horizontal", 5),
    Sketcher.Constraint("Vertical", 6),
    Sketcher.Constraint("Horizontal", 7),
    Sketcher.Constraint("Coincident", 0, 2, -1, 1),
    Sketcher.Constraint("PointOnObject", 4, 2, -1),
    Sketcher.Constraint("Horizontal", 3, 2, 6, 2),
    Sketcher.Constraint("Equal", 3, 5),
    Sketcher.Constraint("DistanceX", -1, 1, 5, 2, Q("78 mm")),
    Sketcher.Constraint("DistanceX", 1, 1, 1, 2, Q("4.20684 mm")),
    Sketcher.Constraint("DistanceY", 0, 1, 0, 2, Q("3.626823 mm")),
])
pad7 = doc.addObject("PartDesign::Pad", "Pad006")
body.addObject(pad7)
pad7.Profile = sketch7
pad7.setExpression("Length", "Params.pad7_length")
pad7.Reversed = True
doc.recompute()

fillet = doc.addObject("PartDesign::Fillet", "Fillet")
body.addObject(fillet)
fillet.Base = (pad7, edges_at(pad7, [
    (77, -9.25, -11.419),
    (1, -9.25, -14.592),
    (1, -9.25, -11.419),
    (4.173, -9.25, -11.419),
    (73.827, -9.25, -11.419),
    (73.827, -9.25, -14.592),
    (4.173, -9.25, -14.592),
    (77, -9.25, -14.592),
    (77, -9.25, -69.408),
    (73.827, -9.25, -69.408),
    (73.827, -9.25, -72.581),
    (77, -9.25, -72.581),
    (78, 3.5, 0),
    (73.793, 3.5, 0),
    (78, 3.5, -3.627),
    (73.793, 3.5, -3.627),
    (73.827, 10, -11.419),
    (73.827, 10, -14.592),
    (77, 10, -14.592),
    (77, 10, -11.419),
    (73.827, 9.838, -72.581),
    (73.827, 9.838, -69.408),
    (77, 10, -72.581),
    (77, 10, -69.408),
    (4.173, 9.838, -72.581),
    (4.173, 9.838, -69.408),
    (1, 10, -72.581),
    (1, 10, -69.408),
    (4.173, 10, -14.592),
    (4.173, 10, -11.419),
    (1, 10, -14.592),
    (1, 10, -11.419),
    (0, 3.5, -3.627),
    (4.207, 3.5, -3.627),
    (4.207, 3.5, 0),
    (0, 3.5, 0),
    (1, -9.25, -72.581),
    (4.173, -9.25, -72.581),
    (4.173, -9.25, -69.408),
    (1, -9.25, -69.408),
]))
fillet.setExpression("Radius", "Params.fillet_radius")

# Sketch on XY plane
sketch8 = doc.addObject("Sketcher::SketchObject", "Sketch007")
body.addObject(sketch8)
sketch8.AttachmentSupport = (doc.XY_Plane, [""])
sketch8.MapMode = "FlatFace"
sketch8.AttachmentOffset = App.Placement(App.Vector(0, 0, -75.058535), App.Rotation())
sketch8.addGeometry([
    Part.LineSegment(App.Vector(74.459228, 2, 0), App.Vector(74.459228, 0, 0)),
    Part.LineSegment(App.Vector(74.459228, 0, 0), App.Vector(3, 0, 0)),
    Part.LineSegment(App.Vector(3, 0, 0), App.Vector(3, 2, 0)),
    Part.LineSegment(App.Vector(3, 2, 0), App.Vector(74.459228, 2, 0)),
], False)
sketch8.addConstraint([
    Sketcher.Constraint("Coincident", 0, 2, 1, 1),
    Sketcher.Constraint("Coincident", 1, 2, 2, 1),
    Sketcher.Constraint("Coincident", 2, 2, 3, 1),
    Sketcher.Constraint("Coincident", 3, 2, 0, 1),
    Sketcher.Constraint("Vertical", 0),
    Sketcher.Constraint("Horizontal", 1),
    Sketcher.Constraint("Vertical", 2),
    Sketcher.Constraint("Horizontal", 3),
    Sketcher.Constraint("PointOnObject", 0, 2, -1),
    Sketcher.Constraint("DistanceY", 0, 2, 0, 1, Q("2 mm")),
    Sketcher.Constraint("DistanceX", -1, 1, 1, 2, Q("3 mm")),
    Sketcher.Constraint("DistanceX", 1, 2, 1, 1, Q("71.459228 mm")),
])
sketch8.setExpression("Constraints[9]", "Params.sketch8_height")
pad8 = doc.addObject("PartDesign::Pad", "Pad007")
body.addObject(pad8)
pad8.Profile = sketch8
pad8.setExpression("Length", "Params.pad8_length")
pad8.Reversed = True

# Sketch on XZ plane
sketch9 = doc.addObject("Sketcher::SketchObject", "Sketch008")
body.addObject(sketch9)
sketch9.AttachmentSupport = (doc.XZ_Plane, [""])
sketch9.MapMode = "FlatFace"
sketch9.AttachmentOffset = App.Placement(App.Vector(0, 0, -2), App.Rotation())
sketch9.addGeometry([
    Part.LineSegment(App.Vector(3, -77.99393, 0), App.Vector(3, -75.058535, 0)),
    Part.LineSegment(App.Vector(3, -75.058535, 0), App.Vector(74.459228, -75.058535, 0)),
    Part.LineSegment(App.Vector(74.459228, -75.058535, 0), App.Vector(74.459228, -77.99393, 0)),
    Part.LineSegment(App.Vector(74.459228, -77.99393, 0), App.Vector(3, -77.99393, 0)),
], False)
sketch9.addConstraint([
    Sketcher.Constraint("Coincident", 0, 2, 1, 1),
    Sketcher.Constraint("Coincident", 1, 2, 2, 1),
    Sketcher.Constraint("Coincident", 2, 2, 3, 1),
    Sketcher.Constraint("Coincident", 3, 2, 0, 1),
    Sketcher.Constraint("Vertical", 0),
    Sketcher.Constraint("Horizontal", 1),
    Sketcher.Constraint("Vertical", 2),
    Sketcher.Constraint("Horizontal", 3),
    Sketcher.Constraint("DistanceX", -1, 1, 0, 2, Q("3 mm")),
    Sketcher.Constraint("DistanceX", 1, 1, 1, 2, Q("71.459228 mm")),
    Sketcher.Constraint("DistanceY", 0, 1, 0, 2, Q("2.935394 mm")),
    Sketcher.Constraint("DistanceY", 2, 2, -1, 1, Q("77.99393 mm")),
])
pad9 = doc.addObject("PartDesign::Pad", "Pad008")
body.addObject(pad9)
pad9.Profile = sketch9
pad9.setExpression("Length", "Params.pad9_length")
pad9.Midplane = True
doc.recompute()

fillet2 = doc.addObject("PartDesign::Fillet", "Fillet001")
body.addObject(fillet2)
fillet2.Base = (pad9, edges_at(pad9, [(3, 23, -76.526), (74.459, 23, -76.526)]))
fillet2.setExpression("Radius", "Params.fillet2_radius")

# Sketch on XZ plane
sketch10 = doc.addObject("Sketcher::SketchObject", "Sketch009")
body.addObject(sketch10)
sketch10.AttachmentSupport = (doc.XZ_Plane, [""])
sketch10.MapMode = "FlatFace"
sketch10.AttachmentOffset = App.Placement(App.Vector(0, 0, -2), App.Rotation())
sketch10.addGeometry([
    Part.LineSegment(App.Vector(28.229614, -69.407818, 0), App.Vector(28.229614, -18.134899, 0)),  # 0
    Part.LineSegment(App.Vector(28.229614, -18.134899, 0), App.Vector(29.229614, -18.134899, 0)),  # 1
    Part.LineSegment(App.Vector(29.229614, -18.134899, 0), App.Vector(29.229614, -69.407818, 0)),  # 2
    Part.LineSegment(App.Vector(29.229614, -69.407818, 0), App.Vector(28.229614, -69.407818, 0)),  # 3
    Part.LineSegment(App.Vector(48.229614, -69.407818, 0), App.Vector(48.229614, -18.134899, 0)),  # 4
    Part.LineSegment(App.Vector(48.229614, -18.134899, 0), App.Vector(49.229614, -18.134899, 0)),  # 5
    Part.LineSegment(App.Vector(49.229614, -18.134899, 0), App.Vector(49.229614, -69.407818, 0)),  # 6
    Part.LineSegment(App.Vector(49.229614, -69.407818, 0), App.Vector(48.229614, -69.407818, 0)),  # 7
], False)
sketch10.addConstraint([
    Sketcher.Constraint("Coincident", 0, 2, 1, 1),
    Sketcher.Constraint("Coincident", 1, 2, 2, 1),
    Sketcher.Constraint("Coincident", 2, 2, 3, 1),
    Sketcher.Constraint("Coincident", 3, 2, 0, 1),
    Sketcher.Constraint("Coincident", 4, 2, 5, 1),
    Sketcher.Constraint("Coincident", 5, 2, 6, 1),
    Sketcher.Constraint("Coincident", 6, 2, 7, 1),
    Sketcher.Constraint("Coincident", 7, 2, 4, 1),
    Sketcher.Constraint("Vertical", 0),
    Sketcher.Constraint("Horizontal", 1),
    Sketcher.Constraint("Vertical", 2),
    Sketcher.Constraint("Horizontal", 3),
    Sketcher.Constraint("Vertical", 4),
    Sketcher.Constraint("Horizontal", 5),
    Sketcher.Constraint("Vertical", 6),
    Sketcher.Constraint("Horizontal", 7),
    Sketcher.Constraint("Horizontal", 1, 2, 4, 2),
    Sketcher.Constraint("Horizontal", 3, 2, 6, 2),
    Sketcher.Constraint("Equal", 3, 5),
    Sketcher.Constraint("DistanceX", 1, 1, 1, 2, Q("1 mm")),
    Sketcher.Constraint("DistanceX", 1, 2, 4, 2, Q("19 mm")),
    Sketcher.Constraint("DistanceY", 0, 1, 0, 2, Q("51.27292 mm")),
    Sketcher.Constraint("DistanceY", 0, 2, -1, 1, Q("18.134899 mm")),
    Sketcher.Constraint("DistanceX", -1, 1, 0, 2, Q("28.229614 mm")),
])
sketch10.setExpression("Constraints[19]", "Params.sketch10_width")
pad10 = doc.addObject("PartDesign::Pad", "Pad009")
body.addObject(pad10)
pad10.Profile = sketch10
pad10.setExpression("Length", "Params.pad10_length")
pad10.Reversed = True
doc.recompute()

linearpattern = doc.addObject("PartDesign::LinearPattern", "LinearPattern")
body.addObject(linearpattern)
linearpattern.Originals = [pad10]
linearpattern.Direction = (doc.Y_Axis, [""])
linearpattern.Mode = "offset"
linearpattern.setExpression("Offset", "Params.linearpattern_pitch")
linearpattern.Occurrences = 2
linearpattern.Reversed = True
body.Tip = linearpattern

doc.recompute()
